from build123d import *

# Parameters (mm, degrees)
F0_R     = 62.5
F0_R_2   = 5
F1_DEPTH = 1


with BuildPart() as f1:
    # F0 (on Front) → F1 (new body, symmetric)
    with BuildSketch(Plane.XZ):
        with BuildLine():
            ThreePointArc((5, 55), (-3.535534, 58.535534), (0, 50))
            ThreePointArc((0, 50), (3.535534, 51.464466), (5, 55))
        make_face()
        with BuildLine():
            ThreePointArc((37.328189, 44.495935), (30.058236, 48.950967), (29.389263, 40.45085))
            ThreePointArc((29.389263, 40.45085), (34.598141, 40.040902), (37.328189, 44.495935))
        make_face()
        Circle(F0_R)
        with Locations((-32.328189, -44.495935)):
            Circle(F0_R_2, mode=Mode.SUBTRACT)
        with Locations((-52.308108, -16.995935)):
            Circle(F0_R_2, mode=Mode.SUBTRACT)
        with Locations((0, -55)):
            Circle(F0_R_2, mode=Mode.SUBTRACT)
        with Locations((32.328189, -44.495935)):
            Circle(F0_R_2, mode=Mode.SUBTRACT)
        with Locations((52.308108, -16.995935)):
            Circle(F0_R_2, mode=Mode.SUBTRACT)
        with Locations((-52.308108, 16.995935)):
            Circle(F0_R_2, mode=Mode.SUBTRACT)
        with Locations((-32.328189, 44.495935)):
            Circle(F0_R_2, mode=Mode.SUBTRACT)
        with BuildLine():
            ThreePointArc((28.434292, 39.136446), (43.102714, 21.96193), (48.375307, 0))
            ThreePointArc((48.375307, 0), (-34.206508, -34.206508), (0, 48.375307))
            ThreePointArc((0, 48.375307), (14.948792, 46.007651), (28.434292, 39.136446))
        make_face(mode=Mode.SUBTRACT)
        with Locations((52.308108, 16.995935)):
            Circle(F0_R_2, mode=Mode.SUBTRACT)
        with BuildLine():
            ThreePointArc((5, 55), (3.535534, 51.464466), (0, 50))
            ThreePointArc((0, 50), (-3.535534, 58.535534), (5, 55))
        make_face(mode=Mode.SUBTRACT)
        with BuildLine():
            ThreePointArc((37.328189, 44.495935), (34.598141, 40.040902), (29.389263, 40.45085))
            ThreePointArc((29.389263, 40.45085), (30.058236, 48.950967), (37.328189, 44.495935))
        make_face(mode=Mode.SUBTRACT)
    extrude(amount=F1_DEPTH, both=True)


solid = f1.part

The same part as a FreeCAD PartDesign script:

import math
import FreeCAD as App
import Part
import Sketcher

V = App.Vector
Q = App.Units.Quantity

doc = App.newDocument("Part")
body = doc.addObject("PartDesign::Body", "Body")

sketch1 = body.newObject("Sketcher::SketchObject", "Sketch")
sketch1.AttachmentSupport = (doc.getObject("XZ_Plane"), [""])
sketch1.MapMode = "FlatFace"
sketch1.addGeometry([
    Part.Circle(V(0, 0, 0), V(0, 0, 1), 62.5),
    Part.Circle(V(-32.3, -44.5, 0), V(0, 0, 1), 5),
    Part.Circle(V(0, -55, 0), V(0, 0, 1), 5),
    Part.Circle(V(-52.3, -17, 0), V(0, 0, 1), 5),
    Part.ArcOfCircle(Part.Circle(V(0, 0, 0), V(0, 0, 1), 48.4), math.radians(54), math.radians(90)),
    Part.ArcOfCircle(Part.Circle(V(0, 0, 0), V(0, 0, 1), 48.4), math.radians(0), math.radians(54)),
    Part.ArcOfCircle(Part.Circle(V(0, 0, 0), V(0, 0, 1), 48.4), math.radians(90), math.radians(360)),
    Part.Circle(V(32.3, -44.5, 0), V(0, 0, 1), 5),
    Part.Circle(V(52.3, -17, 0), V(0, 0, 1), 5),
    Part.Circle(V(-52.3, 17, 0), V(0, 0, 1), 5),
    Part.Circle(V(-32.3, 44.5, 0), V(0, 0, 1), 5),
    Part.ArcOfCircle(Part.Circle(V(0, 55, 0), V(0, 0, 1), 5), math.radians(0), math.radians(270)),
    Part.ArcOfCircle(Part.Circle(V(0, 55, 0), V(0, 0, 1), 5), math.radians(-90), math.radians(0)),
    Part.Circle(V(52.3, 17, 0), V(0, 0, 1), 5),
    Part.ArcOfCircle(Part.Circle(V(32.3, 44.5, 0), V(0, 0, 1), 5), math.radians(0), math.radians(234)),
    Part.ArcOfCircle(Part.Circle(V(32.3, 44.5, 0), V(0, 0, 1), 5), math.radians(-126), math.radians(0)),
], False)
sketch1.addConstraint([
    Sketcher.Constraint("Tangent", 4, 1, 5, 2),
    Sketcher.Constraint("Tangent", 5, 1, 6, 2),
    Sketcher.Constraint("Tangent", 6, 1, 4, 2),
    Sketcher.Constraint("Tangent", 11, 1, 12, 2),
    Sketcher.Constraint("Coincident", 12, 1, 11, 2),
    Sketcher.Constraint("Tangent", 14, 1, 15, 2),
    Sketcher.Constraint("Coincident", 15, 1, 14, 2),
    Sketcher.Constraint("Coincident", 0, 3, -1, 1),
    Sketcher.Constraint("Coincident", 4, 3, -1, 1),
    Sketcher.Constraint("Equal", 1, 2),
    Sketcher.Constraint("Equal", 2, 3),
    Sketcher.Constraint("Equal", 3, 7),
    Sketcher.Constraint("Equal", 7, 8),
    Sketcher.Constraint("Equal", 8, 9),
    Sketcher.Constraint("Equal", 9, 10),
    Sketcher.Constraint("Equal", 10, 11),
    Sketcher.Constraint("Equal", 12, 13),
    Sketcher.Constraint("Equal", 13, 14),
    Sketcher.Constraint("Symmetric", 8, 3, 9, 3, -1, 1),
    Sketcher.Constraint("Symmetric", 7, 3, 10, 3, -1, 1),
    Sketcher.Constraint("Symmetric", 2, 3, 11, 3, -1, 1),
    Sketcher.Constraint("Symmetric", 3, 3, 13, 3, -1, 1),
    Sketcher.Constraint("Symmetric", 1, 3, 14, 3, -1, 1),
    Sketcher.Constraint("Symmetric", 1, 3, 7, 3, -2),
    Sketcher.Constraint("Symmetric", 3, 3, 8, 3, -2),
    Sketcher.Constraint("PointOnObject", 2, 3, -2),
    Sketcher.Constraint("PointOnObject", 5, 1, -1),
    Sketcher.Constraint("PointOnObject", 6, 1, -2),
    Sketcher.Constraint("PointOnObject", 12, 1, -2),
    Sketcher.Constraint("Horizontal", 12, 3, 11, 1),
    Sketcher.Constraint("Horizontal", 15, 3, 14, 1),
    Sketcher.Constraint("Diameter", 0, Q("125 mm")),
    Sketcher.Constraint("Diameter", 1, Q("10 mm")),
    Sketcher.Constraint("DistanceY", 2, 3, -1, 1, Q("55 mm")),
    Sketcher.Constraint("DistanceY", 1, 3, 3, 3, Q("27.5 mm")),
    Sketcher.Constraint("Radius", 4, Q("48.37531 mm")),
    Sketcher.Constraint("DistanceX", 5, 1, 8, 3, Q("3.932801 mm")),
    Sketcher.Constraint("DistanceX", 1, 3, -1, 1, Q("32.328189 mm")),
    Sketcher.Constraint("DistanceY", -1, 1, 15, 1, Q("40.45085 mm")),
    Sketcher.Constraint("DistanceY", 1, 3, 4, 3, Q("44.495932 mm")),
    Sketcher.Constraint("DistanceY", 4, 1, 15, 3, Q("5.359489 mm")),
])
pad1 = body.newObject("PartDesign::Pad", "Pad")
pad1.Profile = sketch1
pad1.Length = 2
pad1.Midplane = True

doc.recompute()
